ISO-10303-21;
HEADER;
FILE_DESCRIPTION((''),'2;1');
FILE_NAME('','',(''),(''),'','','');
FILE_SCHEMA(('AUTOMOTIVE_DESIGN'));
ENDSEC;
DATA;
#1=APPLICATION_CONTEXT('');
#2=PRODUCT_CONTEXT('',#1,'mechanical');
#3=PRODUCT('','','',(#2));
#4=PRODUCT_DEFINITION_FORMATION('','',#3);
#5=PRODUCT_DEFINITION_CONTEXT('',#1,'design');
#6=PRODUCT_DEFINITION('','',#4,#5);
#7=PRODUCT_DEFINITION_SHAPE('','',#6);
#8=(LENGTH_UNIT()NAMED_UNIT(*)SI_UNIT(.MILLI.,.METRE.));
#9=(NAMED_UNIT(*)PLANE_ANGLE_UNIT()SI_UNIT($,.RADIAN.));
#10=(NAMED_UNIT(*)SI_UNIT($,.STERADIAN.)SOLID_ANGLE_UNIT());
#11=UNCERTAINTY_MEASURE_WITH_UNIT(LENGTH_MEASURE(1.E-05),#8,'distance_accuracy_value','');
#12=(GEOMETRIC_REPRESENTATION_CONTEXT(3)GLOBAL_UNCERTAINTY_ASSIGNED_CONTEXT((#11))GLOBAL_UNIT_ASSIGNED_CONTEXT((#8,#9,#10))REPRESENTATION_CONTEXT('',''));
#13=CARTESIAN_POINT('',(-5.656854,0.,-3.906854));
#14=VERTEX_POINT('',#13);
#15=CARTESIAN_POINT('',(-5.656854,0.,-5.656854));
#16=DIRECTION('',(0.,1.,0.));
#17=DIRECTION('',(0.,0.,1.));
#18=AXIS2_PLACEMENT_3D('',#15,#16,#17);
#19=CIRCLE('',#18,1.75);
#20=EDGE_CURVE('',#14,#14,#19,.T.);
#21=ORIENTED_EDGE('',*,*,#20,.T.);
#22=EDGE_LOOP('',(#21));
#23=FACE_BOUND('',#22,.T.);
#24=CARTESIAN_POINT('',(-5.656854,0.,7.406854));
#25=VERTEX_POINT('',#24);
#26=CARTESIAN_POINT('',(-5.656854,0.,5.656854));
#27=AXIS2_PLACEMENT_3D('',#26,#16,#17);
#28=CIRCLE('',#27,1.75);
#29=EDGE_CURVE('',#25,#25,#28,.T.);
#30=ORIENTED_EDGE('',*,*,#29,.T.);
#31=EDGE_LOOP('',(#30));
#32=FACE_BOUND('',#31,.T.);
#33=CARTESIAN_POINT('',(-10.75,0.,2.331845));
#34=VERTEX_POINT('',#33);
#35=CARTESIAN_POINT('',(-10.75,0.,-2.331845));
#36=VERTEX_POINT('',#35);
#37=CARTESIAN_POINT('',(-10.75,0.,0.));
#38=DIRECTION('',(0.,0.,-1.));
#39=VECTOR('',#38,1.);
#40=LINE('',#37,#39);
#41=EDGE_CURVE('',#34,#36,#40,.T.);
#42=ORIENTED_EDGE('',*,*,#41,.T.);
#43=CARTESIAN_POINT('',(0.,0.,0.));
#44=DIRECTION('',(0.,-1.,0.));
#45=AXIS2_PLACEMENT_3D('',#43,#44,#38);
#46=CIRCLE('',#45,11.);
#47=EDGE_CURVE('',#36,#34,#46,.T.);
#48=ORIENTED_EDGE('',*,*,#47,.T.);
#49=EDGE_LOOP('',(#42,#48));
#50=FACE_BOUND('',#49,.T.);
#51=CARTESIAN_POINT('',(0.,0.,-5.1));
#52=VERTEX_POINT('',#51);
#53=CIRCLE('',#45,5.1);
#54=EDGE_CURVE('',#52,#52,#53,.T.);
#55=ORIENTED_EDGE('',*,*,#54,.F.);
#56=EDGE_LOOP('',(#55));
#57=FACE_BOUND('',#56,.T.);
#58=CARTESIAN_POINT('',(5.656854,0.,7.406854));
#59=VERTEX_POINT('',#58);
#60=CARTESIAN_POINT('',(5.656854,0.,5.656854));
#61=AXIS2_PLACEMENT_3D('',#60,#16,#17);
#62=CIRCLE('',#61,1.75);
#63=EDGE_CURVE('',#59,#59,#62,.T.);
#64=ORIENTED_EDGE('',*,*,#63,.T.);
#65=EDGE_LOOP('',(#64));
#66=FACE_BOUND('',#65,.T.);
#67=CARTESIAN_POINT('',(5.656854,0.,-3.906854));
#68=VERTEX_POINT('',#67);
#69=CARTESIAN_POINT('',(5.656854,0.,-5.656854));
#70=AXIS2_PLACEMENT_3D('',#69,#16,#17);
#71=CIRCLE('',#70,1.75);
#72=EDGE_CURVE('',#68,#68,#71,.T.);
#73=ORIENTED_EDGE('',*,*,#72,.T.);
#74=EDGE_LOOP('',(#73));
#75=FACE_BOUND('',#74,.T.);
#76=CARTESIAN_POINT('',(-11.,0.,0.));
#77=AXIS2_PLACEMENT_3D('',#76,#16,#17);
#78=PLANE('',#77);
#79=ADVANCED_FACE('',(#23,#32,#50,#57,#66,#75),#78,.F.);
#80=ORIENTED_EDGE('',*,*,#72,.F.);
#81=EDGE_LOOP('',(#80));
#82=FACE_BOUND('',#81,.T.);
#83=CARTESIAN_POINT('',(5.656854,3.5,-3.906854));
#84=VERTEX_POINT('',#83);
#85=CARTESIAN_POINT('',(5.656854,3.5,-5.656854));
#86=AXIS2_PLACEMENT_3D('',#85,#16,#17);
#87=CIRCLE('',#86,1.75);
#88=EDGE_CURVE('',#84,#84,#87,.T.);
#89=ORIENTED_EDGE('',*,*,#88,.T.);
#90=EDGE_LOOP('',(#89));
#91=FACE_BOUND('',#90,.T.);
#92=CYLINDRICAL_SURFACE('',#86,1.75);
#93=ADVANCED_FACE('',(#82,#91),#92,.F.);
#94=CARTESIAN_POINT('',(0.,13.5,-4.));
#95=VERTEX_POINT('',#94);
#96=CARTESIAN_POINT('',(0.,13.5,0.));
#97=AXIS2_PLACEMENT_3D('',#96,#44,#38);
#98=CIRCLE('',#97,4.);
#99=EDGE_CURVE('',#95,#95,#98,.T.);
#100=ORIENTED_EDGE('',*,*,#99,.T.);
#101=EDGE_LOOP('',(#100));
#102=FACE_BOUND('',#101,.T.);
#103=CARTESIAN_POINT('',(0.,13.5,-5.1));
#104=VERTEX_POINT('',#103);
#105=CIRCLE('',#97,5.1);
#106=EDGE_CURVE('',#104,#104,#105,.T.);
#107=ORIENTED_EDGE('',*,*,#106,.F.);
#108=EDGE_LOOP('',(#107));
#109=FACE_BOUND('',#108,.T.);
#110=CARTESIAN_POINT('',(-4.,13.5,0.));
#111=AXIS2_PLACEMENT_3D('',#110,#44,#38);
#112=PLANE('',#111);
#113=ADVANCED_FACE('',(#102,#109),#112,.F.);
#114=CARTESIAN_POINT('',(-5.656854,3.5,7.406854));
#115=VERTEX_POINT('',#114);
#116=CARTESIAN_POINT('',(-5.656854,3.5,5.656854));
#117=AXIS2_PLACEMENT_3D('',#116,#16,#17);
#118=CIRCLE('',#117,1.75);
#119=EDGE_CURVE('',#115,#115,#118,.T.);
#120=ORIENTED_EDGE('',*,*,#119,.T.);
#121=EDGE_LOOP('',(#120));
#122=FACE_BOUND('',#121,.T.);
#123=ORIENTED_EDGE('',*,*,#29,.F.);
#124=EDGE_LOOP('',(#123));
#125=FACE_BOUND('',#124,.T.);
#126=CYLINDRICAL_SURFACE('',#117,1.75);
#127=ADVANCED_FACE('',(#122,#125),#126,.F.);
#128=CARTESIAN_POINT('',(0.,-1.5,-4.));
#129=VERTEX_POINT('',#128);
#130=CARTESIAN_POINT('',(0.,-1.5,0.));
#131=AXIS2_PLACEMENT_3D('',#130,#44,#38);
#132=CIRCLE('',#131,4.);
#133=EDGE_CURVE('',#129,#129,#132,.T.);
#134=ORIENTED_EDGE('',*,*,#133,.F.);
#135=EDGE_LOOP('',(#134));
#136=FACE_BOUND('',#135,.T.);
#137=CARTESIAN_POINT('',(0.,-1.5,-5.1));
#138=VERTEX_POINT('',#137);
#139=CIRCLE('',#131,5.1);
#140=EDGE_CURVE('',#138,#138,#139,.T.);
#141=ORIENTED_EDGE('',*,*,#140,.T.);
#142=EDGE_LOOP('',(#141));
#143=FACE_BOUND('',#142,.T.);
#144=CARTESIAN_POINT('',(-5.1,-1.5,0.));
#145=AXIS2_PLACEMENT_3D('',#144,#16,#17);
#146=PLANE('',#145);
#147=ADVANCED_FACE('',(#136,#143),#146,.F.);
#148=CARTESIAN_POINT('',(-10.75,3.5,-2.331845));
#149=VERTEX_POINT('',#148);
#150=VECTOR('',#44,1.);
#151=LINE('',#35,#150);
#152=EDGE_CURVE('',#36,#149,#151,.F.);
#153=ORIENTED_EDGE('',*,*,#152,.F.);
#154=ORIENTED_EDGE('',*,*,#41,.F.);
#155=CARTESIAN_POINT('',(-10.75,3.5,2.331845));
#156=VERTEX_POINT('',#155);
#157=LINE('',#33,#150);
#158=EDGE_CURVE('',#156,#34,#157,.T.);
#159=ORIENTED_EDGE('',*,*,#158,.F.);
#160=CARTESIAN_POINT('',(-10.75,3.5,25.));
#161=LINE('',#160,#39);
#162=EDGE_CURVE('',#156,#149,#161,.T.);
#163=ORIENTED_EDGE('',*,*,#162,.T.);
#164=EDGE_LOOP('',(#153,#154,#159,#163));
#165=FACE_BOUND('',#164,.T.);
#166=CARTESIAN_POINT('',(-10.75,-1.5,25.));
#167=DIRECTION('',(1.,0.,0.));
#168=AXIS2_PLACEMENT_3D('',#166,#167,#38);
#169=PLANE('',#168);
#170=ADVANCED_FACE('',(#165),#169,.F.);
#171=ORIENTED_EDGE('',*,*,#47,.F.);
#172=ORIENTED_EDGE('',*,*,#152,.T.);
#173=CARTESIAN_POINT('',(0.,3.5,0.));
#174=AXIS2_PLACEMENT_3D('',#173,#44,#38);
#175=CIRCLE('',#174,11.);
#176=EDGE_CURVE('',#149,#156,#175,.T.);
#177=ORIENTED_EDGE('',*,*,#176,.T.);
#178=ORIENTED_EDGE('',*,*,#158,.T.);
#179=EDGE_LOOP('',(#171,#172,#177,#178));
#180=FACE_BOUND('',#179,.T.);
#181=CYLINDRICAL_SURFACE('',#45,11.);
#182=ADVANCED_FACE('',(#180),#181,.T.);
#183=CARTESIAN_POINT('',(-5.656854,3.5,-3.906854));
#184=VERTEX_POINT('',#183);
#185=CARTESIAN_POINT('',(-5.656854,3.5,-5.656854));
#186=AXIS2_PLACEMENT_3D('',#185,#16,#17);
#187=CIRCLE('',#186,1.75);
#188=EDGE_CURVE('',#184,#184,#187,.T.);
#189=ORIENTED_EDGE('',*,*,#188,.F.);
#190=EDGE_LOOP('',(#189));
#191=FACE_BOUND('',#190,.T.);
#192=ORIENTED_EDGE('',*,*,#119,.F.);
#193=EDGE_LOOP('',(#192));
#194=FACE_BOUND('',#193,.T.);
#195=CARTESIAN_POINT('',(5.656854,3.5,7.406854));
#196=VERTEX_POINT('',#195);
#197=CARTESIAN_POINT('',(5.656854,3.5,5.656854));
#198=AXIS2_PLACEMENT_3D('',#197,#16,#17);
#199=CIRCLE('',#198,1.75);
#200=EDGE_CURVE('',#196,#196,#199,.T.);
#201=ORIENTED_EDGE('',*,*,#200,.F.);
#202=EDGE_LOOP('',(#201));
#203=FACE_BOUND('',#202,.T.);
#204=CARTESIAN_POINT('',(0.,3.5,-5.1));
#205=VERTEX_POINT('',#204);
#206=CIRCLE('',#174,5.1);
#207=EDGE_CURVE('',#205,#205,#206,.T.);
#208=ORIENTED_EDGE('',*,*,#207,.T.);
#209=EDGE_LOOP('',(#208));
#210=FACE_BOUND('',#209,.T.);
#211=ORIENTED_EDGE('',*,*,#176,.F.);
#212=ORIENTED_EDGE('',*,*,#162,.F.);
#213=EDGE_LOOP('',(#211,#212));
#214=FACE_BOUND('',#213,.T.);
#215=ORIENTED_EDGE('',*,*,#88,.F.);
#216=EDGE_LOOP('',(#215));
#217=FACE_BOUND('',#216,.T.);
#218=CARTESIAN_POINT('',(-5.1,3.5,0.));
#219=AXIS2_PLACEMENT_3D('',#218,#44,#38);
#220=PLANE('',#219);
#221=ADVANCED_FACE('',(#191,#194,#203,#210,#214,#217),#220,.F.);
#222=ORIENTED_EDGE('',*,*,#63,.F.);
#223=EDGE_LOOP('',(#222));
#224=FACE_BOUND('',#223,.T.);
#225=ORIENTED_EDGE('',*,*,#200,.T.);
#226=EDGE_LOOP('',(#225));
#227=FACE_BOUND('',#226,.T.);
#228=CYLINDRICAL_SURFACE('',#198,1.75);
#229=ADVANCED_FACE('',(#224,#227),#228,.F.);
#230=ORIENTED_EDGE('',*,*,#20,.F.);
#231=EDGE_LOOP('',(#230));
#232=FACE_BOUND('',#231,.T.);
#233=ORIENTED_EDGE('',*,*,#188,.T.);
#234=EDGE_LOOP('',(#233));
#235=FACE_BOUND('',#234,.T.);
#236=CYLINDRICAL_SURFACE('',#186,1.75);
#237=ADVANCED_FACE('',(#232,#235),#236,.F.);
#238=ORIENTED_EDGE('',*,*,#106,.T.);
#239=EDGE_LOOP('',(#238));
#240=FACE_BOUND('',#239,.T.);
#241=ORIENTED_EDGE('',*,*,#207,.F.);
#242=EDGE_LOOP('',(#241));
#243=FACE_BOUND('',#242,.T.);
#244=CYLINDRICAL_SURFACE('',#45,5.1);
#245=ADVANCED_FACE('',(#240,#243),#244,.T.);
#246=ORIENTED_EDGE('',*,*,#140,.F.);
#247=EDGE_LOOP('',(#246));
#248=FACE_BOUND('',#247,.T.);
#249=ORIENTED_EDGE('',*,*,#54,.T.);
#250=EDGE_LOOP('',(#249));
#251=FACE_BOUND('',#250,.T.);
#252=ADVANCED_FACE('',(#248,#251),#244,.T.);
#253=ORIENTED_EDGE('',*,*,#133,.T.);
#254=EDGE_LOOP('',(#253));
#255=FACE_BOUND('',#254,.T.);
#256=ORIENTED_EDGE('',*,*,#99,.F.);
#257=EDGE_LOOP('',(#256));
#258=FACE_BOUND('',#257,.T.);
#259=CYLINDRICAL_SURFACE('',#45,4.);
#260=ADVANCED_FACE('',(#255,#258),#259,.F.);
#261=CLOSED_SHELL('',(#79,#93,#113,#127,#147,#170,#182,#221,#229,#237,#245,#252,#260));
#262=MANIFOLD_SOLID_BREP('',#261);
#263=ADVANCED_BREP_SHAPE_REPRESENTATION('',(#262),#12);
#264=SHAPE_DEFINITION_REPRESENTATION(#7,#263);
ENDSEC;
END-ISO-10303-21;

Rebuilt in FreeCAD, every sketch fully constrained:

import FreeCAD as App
import Part
import Sketcher
from FreeCAD import Vector
Q = App.Units.Quantity


def add_polygon(sketch, points):
    """Adds a closed chain of lines whose ends are joined by coincident constraints."""
    first, n = sketch.GeometryCount, len(points)
    for a, b in zip(points, points[1:] + points[:1]):
        sketch.addGeometry(Part.LineSegment(App.Vector(*a, 0), App.Vector(*b, 0)), False)
    for i in range(n):
        sketch.addConstraint(Sketcher.Constraint("Coincident", first + i, 2, first + (i + 1) % n, 1))

doc = App.newDocument("Part")
body = doc.addObject("PartDesign::Body", "Body")

# Sketch on XY plane
sketch1 = body.newObject("Sketcher::SketchObject", "Sketch")
sketch1.AttachmentSupport = (doc.getObject("XY_Plane"), [""])
sketch1.MapMode = "FlatFace"
add_polygon(sketch1, [(-4, 13.5), (-5.1, 13.5), (-5.1, 3.5), (-11, 3.5), (-11, 0), (-5.1, 0), (-5.1, -1.5), (-4, -1.5)])  # lines 0-7
sketch1.addConstraint([
    Sketcher.Constraint("Horizontal", 0),
    Sketcher.Constraint("Vertical", 1),
    Sketcher.Constraint("Horizontal", 2),
    Sketcher.Constraint("Vertical", 3),
    Sketcher.Constraint("Horizontal", 4),
    Sketcher.Constraint("Vertical", 5),
    Sketcher.Constraint("Horizontal", 6),
    Sketcher.Constraint("Vertical", 7),
    Sketcher.Constraint("PointOnObject", 3, 2, -1),
    Sketcher.Constraint("Vertical", 1, 2, 4, 2),
    Sketcher.Constraint("DistanceY", 1, 2, 1, 1, Q("10 mm")),
    Sketcher.Constraint("DistanceY", 7, 1, 7, 2, Q("15 mm")),
    Sketcher.Constraint("DistanceX", 0, 2, 0, 1, Q("1.1 mm")),
    Sketcher.Constraint("DistanceX", 2, 2, 2, 1, Q("5.9 mm")),
    Sketcher.Constraint("DistanceY", 3, 2, 3, 1, Q("3.5 mm")),
    Sketcher.Constraint("DistanceX", 2, 2, -1, 1, Q("11 mm")),
])
revolution = body.newObject("PartDesign::Revolution", "Revolution")
revolution.Profile = sketch1
revolution.ReferenceAxis = (sketch1, ["V_Axis"])
revolution.Angle = 360

# Sketch on XZ plane
sketch2 = body.newObject("Sketcher::SketchObject", "Sketch001")
sketch2.AttachmentSupport = (doc.getObject("XZ_Plane"), [""])
sketch2.MapMode = "FlatFace"
sketch2.AttachmentOffset = App.Placement(Vector(0, 0, -3.5), App.Rotation())
sketch2.addGeometry([
    Part.Circle(Vector(5.656854, -5.656854, 0), Vector(0, 0, 1), 1.75),
    Part.Circle(Vector(-5.656854, -5.656854, 0), Vector(0, 0, 1), 1.75),
    Part.Circle(Vector(5.656854, 5.656854, 0), Vector(0, 0, 1), 1.75),
    Part.Circle(Vector(-5.656854, 5.656854, 0), Vector(0, 0, 1), 1.75),
], False)
sketch2.addConstraint([
    Sketcher.Constraint("Equal", 0, 1),
    Sketcher.Constraint("Equal", 1, 2),
    Sketcher.Constraint("Equal", 2, 3),
    Sketcher.Constraint("Symmetric", 1, 3, 2, 3, -1, 1),
    Sketcher.Constraint("Symmetric", 0, 3, 3, 3, -1, 1),
    Sketcher.Constraint("Symmetric", 0, 3, 1, 3, -2),
    Sketcher.Constraint("Diameter", 0, Q("3.5 mm")),
    Sketcher.Constraint("DistanceX", 1, 3, 0, 3, Q("11.313708 mm")),
    Sketcher.Constraint("DistanceY", 0, 3, 2, 3, Q("11.313708 mm")),
])
doc.recompute()
hole = body.newObject("PartDesign::Hole", "Hole")
hole.Profile = sketch2
hole.ThreadType = "None"
hole.Diameter = 3.5
hole.DepthType = "ThroughAll"
hole.Reversed = True

# Sketch on XZ plane
sketch3 = body.newObject("Sketcher::SketchObject", "Sketch002")
sketch3.AttachmentSupport = (doc.getObject("XZ_Plane"), [""])
sketch3.MapMode = "FlatFace"
sketch3.AttachmentOffset = App.Placement(Vector(0, 0, -3.5), App.Rotation())
add_polygon(sketch3, [(-11.25, -25), (-11.25, 25), (-10.75, 25), (-10.75, -25)])  # lines 0-3
sketch3.addConstraint([
    Sketcher.Constraint("Vertical", 0),
    Sketcher.Constraint("Horizontal", 1),
    Sketcher.Constraint("Vertical", 2),
    Sketcher.Constraint("Horizontal", 3),
    Sketcher.Constraint("DistanceY", 0, 1, 0, 2, Q("50 mm")),
    Sketcher.Constraint("DistanceX", 1, 1, 1, 2, Q("0.5 mm")),
    Sketcher.Constraint("DistanceY", -1, 1, 0, 2, Q("25 mm")),
    Sketcher.Constraint("DistanceX", 0, 2, -1, 1, Q("11.25 mm")),
])
pocket1 = body.newObject("PartDesign::Pocket", "Pocket")
pocket1.Profile = sketch3
pocket1.Type = "ThroughAll"
pocket1.Reversed = True

doc.recompute()
